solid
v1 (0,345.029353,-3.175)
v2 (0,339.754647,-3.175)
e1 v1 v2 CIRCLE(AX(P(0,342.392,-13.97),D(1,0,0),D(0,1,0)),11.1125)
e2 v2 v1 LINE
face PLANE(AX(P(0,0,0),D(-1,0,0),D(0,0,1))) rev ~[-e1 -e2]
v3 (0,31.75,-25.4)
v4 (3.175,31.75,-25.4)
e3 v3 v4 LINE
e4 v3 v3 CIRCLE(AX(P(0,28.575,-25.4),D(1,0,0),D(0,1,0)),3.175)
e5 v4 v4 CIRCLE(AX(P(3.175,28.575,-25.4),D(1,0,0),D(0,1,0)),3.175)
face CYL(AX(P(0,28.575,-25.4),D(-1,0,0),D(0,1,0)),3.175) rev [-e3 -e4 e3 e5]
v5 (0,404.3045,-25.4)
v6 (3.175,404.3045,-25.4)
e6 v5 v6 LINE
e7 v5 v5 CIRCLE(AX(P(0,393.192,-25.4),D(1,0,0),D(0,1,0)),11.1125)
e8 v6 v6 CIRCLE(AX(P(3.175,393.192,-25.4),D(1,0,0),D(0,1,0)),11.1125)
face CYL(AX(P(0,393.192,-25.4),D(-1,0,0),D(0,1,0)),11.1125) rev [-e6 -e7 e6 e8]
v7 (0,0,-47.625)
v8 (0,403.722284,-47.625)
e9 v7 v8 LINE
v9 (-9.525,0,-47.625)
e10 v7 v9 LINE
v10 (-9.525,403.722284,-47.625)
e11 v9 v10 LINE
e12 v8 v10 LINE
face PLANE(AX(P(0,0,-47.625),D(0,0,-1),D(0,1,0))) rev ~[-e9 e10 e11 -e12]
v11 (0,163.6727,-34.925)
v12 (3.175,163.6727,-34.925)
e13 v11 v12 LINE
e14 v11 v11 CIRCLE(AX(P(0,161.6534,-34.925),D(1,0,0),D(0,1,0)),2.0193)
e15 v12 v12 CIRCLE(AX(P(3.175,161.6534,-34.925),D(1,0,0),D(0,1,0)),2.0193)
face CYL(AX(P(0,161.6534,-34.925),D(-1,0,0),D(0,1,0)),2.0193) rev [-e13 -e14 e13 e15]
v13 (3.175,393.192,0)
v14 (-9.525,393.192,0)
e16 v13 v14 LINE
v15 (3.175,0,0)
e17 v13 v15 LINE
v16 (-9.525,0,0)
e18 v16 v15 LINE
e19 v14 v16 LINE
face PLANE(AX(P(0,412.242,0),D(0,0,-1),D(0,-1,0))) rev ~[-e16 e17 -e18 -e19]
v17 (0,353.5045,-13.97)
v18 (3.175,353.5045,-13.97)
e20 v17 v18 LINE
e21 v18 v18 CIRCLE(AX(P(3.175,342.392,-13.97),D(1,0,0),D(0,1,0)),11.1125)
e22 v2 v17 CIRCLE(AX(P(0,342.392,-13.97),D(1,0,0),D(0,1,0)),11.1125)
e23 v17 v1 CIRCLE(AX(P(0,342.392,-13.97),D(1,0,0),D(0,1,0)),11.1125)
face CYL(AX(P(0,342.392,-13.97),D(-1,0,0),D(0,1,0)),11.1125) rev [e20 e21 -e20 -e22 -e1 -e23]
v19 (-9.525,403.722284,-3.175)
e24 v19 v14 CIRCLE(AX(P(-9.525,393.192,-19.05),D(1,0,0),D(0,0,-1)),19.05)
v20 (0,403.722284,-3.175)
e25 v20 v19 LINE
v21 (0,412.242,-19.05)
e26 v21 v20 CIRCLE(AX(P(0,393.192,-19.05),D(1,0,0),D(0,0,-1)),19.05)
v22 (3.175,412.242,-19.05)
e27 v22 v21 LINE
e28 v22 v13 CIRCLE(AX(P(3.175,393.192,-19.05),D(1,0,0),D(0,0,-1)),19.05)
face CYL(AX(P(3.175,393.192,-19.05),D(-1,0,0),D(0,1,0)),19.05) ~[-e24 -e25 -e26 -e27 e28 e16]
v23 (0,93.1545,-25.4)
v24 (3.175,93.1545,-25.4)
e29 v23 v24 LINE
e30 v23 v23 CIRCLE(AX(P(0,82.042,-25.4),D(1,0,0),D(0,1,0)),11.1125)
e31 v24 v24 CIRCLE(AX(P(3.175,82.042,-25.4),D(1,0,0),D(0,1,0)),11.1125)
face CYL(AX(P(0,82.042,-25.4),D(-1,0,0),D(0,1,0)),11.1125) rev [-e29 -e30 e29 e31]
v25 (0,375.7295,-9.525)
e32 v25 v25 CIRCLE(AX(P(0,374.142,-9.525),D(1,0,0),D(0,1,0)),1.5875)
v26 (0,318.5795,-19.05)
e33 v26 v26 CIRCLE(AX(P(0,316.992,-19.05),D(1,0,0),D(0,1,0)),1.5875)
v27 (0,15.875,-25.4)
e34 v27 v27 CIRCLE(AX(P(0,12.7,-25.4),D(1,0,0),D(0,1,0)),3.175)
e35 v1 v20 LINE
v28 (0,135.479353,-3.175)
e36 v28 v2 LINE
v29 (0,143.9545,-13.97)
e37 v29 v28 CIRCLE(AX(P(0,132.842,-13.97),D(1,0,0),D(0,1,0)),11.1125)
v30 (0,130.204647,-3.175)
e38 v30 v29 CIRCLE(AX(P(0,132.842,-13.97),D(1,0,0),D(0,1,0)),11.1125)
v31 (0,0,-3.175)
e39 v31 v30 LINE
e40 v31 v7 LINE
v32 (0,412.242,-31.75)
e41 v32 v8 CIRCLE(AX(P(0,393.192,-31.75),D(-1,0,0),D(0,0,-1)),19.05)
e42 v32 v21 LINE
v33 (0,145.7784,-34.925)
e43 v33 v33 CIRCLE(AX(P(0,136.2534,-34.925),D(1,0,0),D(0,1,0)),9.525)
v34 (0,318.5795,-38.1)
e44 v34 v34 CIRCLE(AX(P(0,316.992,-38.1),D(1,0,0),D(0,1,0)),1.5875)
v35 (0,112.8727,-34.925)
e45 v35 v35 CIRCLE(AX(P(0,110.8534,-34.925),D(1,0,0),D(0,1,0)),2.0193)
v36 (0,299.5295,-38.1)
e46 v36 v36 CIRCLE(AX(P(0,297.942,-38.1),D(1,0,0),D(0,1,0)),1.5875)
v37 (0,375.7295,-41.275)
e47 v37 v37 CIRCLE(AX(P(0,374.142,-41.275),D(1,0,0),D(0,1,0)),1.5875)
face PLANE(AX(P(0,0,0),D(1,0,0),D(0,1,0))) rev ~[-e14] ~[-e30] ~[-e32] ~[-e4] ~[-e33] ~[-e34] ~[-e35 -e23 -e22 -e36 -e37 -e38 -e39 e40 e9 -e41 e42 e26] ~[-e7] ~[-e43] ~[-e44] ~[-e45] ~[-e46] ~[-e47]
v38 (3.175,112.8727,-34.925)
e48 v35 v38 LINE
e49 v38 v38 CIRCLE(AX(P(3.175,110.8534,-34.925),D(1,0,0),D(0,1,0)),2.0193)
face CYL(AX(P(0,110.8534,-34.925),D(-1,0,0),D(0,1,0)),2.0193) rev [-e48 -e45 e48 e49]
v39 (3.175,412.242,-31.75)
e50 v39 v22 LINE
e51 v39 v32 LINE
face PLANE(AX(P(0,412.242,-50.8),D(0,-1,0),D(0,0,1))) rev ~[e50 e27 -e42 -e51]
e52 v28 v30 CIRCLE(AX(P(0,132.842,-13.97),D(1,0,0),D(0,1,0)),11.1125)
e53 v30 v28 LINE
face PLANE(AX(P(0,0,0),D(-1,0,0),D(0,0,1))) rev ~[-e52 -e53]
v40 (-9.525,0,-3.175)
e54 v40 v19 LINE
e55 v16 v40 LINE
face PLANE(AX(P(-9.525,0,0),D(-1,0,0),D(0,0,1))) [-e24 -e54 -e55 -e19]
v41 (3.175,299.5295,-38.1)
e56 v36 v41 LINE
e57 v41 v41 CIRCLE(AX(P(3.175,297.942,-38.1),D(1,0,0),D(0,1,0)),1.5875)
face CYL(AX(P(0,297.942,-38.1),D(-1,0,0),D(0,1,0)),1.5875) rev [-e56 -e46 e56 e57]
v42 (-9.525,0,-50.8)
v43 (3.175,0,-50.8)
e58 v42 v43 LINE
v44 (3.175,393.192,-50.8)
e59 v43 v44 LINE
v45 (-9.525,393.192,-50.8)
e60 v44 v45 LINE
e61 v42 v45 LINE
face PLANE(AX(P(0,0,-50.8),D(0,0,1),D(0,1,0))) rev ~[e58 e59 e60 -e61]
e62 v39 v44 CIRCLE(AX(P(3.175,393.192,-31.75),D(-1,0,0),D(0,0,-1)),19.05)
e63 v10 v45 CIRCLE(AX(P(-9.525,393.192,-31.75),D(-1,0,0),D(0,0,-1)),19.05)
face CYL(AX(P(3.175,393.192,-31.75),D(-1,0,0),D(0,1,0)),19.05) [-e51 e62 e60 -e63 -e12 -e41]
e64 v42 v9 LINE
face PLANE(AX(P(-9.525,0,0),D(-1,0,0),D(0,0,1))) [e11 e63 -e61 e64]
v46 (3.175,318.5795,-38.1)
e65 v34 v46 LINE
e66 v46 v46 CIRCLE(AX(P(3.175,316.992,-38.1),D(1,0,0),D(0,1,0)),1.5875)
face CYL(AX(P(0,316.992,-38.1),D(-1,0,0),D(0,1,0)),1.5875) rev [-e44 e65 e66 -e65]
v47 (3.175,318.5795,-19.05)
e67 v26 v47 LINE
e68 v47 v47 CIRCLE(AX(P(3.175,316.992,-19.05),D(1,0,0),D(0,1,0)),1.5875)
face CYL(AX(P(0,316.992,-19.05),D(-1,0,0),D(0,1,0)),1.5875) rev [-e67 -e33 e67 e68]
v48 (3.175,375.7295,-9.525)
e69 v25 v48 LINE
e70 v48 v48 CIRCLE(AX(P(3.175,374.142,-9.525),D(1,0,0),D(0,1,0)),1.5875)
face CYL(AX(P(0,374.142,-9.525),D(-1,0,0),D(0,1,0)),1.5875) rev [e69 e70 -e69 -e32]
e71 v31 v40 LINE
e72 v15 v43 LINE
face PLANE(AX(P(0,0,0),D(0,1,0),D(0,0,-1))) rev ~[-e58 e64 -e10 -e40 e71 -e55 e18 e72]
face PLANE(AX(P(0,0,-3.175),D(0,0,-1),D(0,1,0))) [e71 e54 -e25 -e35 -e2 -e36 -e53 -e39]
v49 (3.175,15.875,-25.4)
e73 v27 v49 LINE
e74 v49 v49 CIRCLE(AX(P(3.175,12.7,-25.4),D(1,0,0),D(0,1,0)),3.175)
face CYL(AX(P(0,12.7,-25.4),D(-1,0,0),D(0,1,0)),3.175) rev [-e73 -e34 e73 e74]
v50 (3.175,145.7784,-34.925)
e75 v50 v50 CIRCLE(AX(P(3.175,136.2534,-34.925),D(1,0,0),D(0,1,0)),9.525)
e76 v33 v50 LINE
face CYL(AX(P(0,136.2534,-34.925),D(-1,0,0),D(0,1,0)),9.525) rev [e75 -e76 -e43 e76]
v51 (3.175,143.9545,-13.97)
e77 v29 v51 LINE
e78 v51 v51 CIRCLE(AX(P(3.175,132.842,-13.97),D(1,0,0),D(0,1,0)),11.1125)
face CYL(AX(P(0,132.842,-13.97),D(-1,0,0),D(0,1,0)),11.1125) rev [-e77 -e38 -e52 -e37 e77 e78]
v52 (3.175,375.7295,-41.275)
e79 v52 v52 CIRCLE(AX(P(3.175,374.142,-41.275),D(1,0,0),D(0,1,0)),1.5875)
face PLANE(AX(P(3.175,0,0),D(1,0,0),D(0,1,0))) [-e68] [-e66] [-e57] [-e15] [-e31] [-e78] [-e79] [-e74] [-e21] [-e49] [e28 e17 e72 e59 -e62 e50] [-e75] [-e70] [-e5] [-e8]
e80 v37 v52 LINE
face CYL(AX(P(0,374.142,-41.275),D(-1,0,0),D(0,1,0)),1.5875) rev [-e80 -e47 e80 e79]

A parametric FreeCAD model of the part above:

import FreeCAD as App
import Part
import Sketcher
from FreeCAD import Vector
Q = App.Units.Quantity


def edges_at(feature, points):
    """Names of the edges that pass closest to the given points."""
    edges = feature.Shape.Edges
    near = lambda p: min(range(len(edges)), key=lambda i: edges[i].distToShape(Part.Vertex(*p))[0])
    return sorted({f"Edge{near(p) + 1}" for p in points})

doc = App.newDocument("Part")
body = doc.addObject("PartDesign::Body", "Body")

sketch1 = body.newObject("Sketcher::SketchObject", "Sketch")
sketch1.AttachmentSupport = (doc.getObject("YZ_Plane"), [""])
sketch1.MapMode = "FlatFace"
sketch1.addGeometry(Part.LineSegment(Vector(412.242, 0, 0), Vector(0, 0, 0)), False)
sketch1.addGeometry(Part.LineSegment(Vector(0, 0, 0), Vector(0, -50.8, 0)), False)
sketch1.addGeometry(Part.LineSegment(Vector(0, -50.8, 0), Vector(412.242, -50.8, 0)), False)
sketch1.addGeometry(Part.LineSegment(Vector(412.242, -50.8, 0), Vector(412.242, 0, 0)), False)
sketch1.addGeometry(Part.Circle(Vector(12.7, -25.4, 0), Vector(0, 0, 1), 3.175), False)
sketch1.addGeometry(Part.Circle(Vector(28.575, -25.4, 0), Vector(0, 0, 1), 3.175), False)
sketch1.addGeometry(Part.Circle(Vector(82.042, -25.4, 0), Vector(0, 0, 1), 11.1125), False)
sketch1.addGeometry(Part.Circle(Vector(110.8534, -34.925, 0), Vector(0, 0, 1), 2.0193), False)
sketch1.addGeometry(Part.Circle(Vector(136.2534, -34.925, 0), Vector(0, 0, 1), 9.525), False)
sketch1.addGeometry(Part.Circle(Vector(161.6534, -34.925, 0), Vector(0, 0, 1), 2.0193), False)
sketch1.addGeometry(Part.Circle(Vector(297.942, -38.1, 0), Vector(0, 0, 1), 1.5875), False)
sketch1.addGeometry(Part.Circle(Vector(316.992, -38.1, 0), Vector(0, 0, 1), 1.5875), False)
sketch1.addGeometry(Part.Circle(Vector(374.142, -41.275, 0), Vector(0, 0, 1), 1.5875), False)
sketch1.addGeometry(Part.Circle(Vector(393.192, -25.4, 0), Vector(0, 0, 1), 11.1125), False)
sketch1.addGeometry(Part.Circle(Vector(132.842, -13.97, 0), Vector(0, 0, 1), 11.1125), False)
sketch1.addGeometry(Part.Circle(Vector(316.992, -19.05, 0), Vector(0, 0, 1), 1.5875), False)
sketch1.addGeometry(Part.Circle(Vector(342.392, -13.97, 0), Vector(0, 0, 1), 11.1125), False)
sketch1.addGeometry(Part.Circle(Vector(374.142, -9.525, 0), Vector(0, 0, 1), 1.5875), False)
sketch1.addConstraint(Sketcher.Constraint("Coincident", 0, 2, 1, 1))
sketch1.addConstraint(Sketcher.Constraint("Coincident", 1, 2, 2, 1))
sketch1.addConstraint(Sketcher.Constraint("Coincident", 2, 2, 3, 1))
sketch1.addConstraint(Sketcher.Constraint("Coincident", 3, 2, 0, 1))
sketch1.addConstraint(Sketcher.Constraint("Horizontal", 0))
sketch1.addConstraint(Sketcher.Constraint("Vertical", 1))
sketch1.addConstraint(Sketcher.Constraint("Horizontal", 2))
sketch1.addConstraint(Sketcher.Constraint("Vertical", 3))
sketch1.addConstraint(Sketcher.Constraint("Coincident", 0, 2, -1, 1))
sketch1.addConstraint(Sketcher.Constraint("Equal", 4, 5))
sketch1.addConstraint(Sketcher.Constraint("Equal", 7, 9))
sketch1.addConstraint(Sketcher.Constraint("Equal", 10, 11))
sketch1.addConstraint(Sketcher.Constraint("Equal", 11, 12))
sketch1.addConstraint(Sketcher.Constraint("Equal", 6, 13))
sketch1.addConstraint(Sketcher.Constraint("Equal", 13, 14))
sketch1.addConstraint(Sketcher.Constraint("Equal", 12, 15))
sketch1.addConstraint(Sketcher.Constraint("Equal", 14, 16))
sketch1.addConstraint(Sketcher.Constraint("Equal", 15, 17))
sketch1.addConstraint(Sketcher.Constraint("Horizontal", 4, 3, 5, 3))
sketch1.addConstraint(Sketcher.Constraint("Horizontal", 5, 3, 6, 3))
sketch1.addConstraint(Sketcher.Constraint("Horizontal", 7, 3, 8, 3))
sketch1.addConstraint(Sketcher.Constraint("Horizontal", 8, 3, 9, 3))
sketch1.addConstraint(Sketcher.Constraint("Horizontal", 10, 3, 11, 3))
sketch1.addConstraint(Sketcher.Constraint("Horizontal", 6, 3, 13, 3))
sketch1.addConstraint(Sketcher.Constraint("Horizontal", 14, 3, 16, 3))
sketch1.addConstraint(Sketcher.Constraint("Vertical", 11, 3, 15, 3))
sketch1.addConstraint(Sketcher.Constraint("Vertical", 12, 3, 17, 3))
sketch1.addConstraint(Sketcher.Constraint("Diameter", 4, Q("0.25 in")))
sketch1.addConstraint(Sketcher.Constraint("Diameter", 8, Q("0.75 in")))
sketch1.addConstraint(Sketcher.Constraint("DistanceY", 1, 2, 1, 1, Q("2 in")))
sketch1.addConstraint(Sketcher.Constraint("Diameter", 6, Q("0.875 in")))
sketch1.addConstraint(Sketcher.Constraint("Diameter", 7, Q("0.159 in")))
sketch1.addConstraint(Sketcher.Constraint("Diameter", 10, Q("0.125 in")))
sketch1.addConstraint(Sketcher.Constraint("DistanceX", 7, 3, 9, 3, Q("2 in")))
sketch1.addConstraint(Sketcher.Constraint("DistanceX", 6, 3, 14, 3, Q("2 in")))
sketch1.addConstraint(Sketcher.Constraint("DistanceX", 16, 3, 13, 3, Q("2 in")))
sketch1.addConstraint(Sketcher.Constraint("DistanceX", -1, 1, 4, 3, Q("0.5 in")))
sketch1.addConstraint(Sketcher.Constraint("DistanceY", 10, 3, 6, 3, Q("0.5 in")))
sketch1.addConstraint(Sketcher.Constraint("DistanceY", 2, 2, 11, 3, Q("0.5 in")))
sketch1.addConstraint(Sketcher.Constraint("DistanceX", -1, 1, 6, 3, Q("3.23 in")))
sketch1.addConstraint(Sketcher.Constraint("DistanceY", 15, 3, -1, 1, Q("0.75 in")))
sketch1.addConstraint(Sketcher.Constraint("DistanceX", 10, 3, 11, 3, Q("0.75 in")))
sketch1.addConstraint(Sketcher.Constraint("DistanceX", 6, 3, 11, 3, Q("9.25 in")))
sketch1.addConstraint(Sketcher.Constraint("DistanceY", 12, 3, 9, 3, Q("0.25 in")))
sketch1.addConstraint(Sketcher.Constraint("DistanceX", 12, 3, 13, 3, Q("0.75 in")))
sketch1.addConstraint(Sketcher.Constraint("DistanceY", 6, 3, 14, 3, Q("0.45 in")))
sketch1.addConstraint(Sketcher.Constraint("DistanceY", 12, 3, 17, 3, Q("1.25 in")))
sketch1.addConstraint(Sketcher.Constraint("DistanceX", 13, 3, 2, 2, Q("0.75 in")))
sketch1.addConstraint(Sketcher.Constraint("DistanceX", 4, 3, 5, 3, Q("0.625 in")))
sketch1.addConstraint(Sketcher.Constraint("DistanceX", 7, 3, 8, 3, Q("1 in")))
sketch1.addConstraint(Sketcher.Constraint("DistanceY", 10, 3, 9, 3, Q("0.125 in")))
sketch1.addConstraint(Sketcher.Constraint("DistanceX", 10, 3, 12, 3, Q("3 in")))
sketch1.addConstraint(Sketcher.Constraint("DistanceX", -1, 1, 7, 3, Q("4.3643 in")))
pad1 = body.newObject("PartDesign::Pad", "Pad")
pad1.Profile = sketch1
pad1.Length = Q("0.125 in")

sketch2 = body.newObject("Sketcher::SketchObject", "Sketch001")
sketch2.AttachmentSupport = (doc.getObject("YZ_Plane"), [""])
sketch2.MapMode = "FlatFace"
sketch2.addGeometry(Part.LineSegment(Vector(0, 0, 0), Vector(412.242, 0, 0)), False)
sketch2.addGeometry(Part.LineSegment(Vector(412.242, 0, 0), Vector(412.242, -3.175, 0)), False)
sketch2.addGeometry(Part.LineSegment(Vector(412.242, -3.175, 0), Vector(0, -3.175, 0)), False)
sketch2.addGeometry(Part.LineSegment(Vector(0, -3.175, 0), Vector(0, 0, 0)), False)
sketch2.addGeometry(Part.LineSegment(Vector(412.242, -50.8, 0), Vector(0, -50.8, 0)), False)
sketch2.addGeometry(Part.LineSegment(Vector(0, -50.8, 0), Vector(0, -47.625, 0)), False)
sketch2.addGeometry(Part.LineSegment(Vector(0, -47.625, 0), Vector(412.242, -47.625, 0)), False)
sketch2.addGeometry(Part.LineSegment(Vector(412.242, -47.625, 0), Vector(412.242, -50.8, 0)), False)
sketch2.addConstraint(Sketcher.Constraint("Coincident", 0, 2, 1, 1))
sketch2.addConstraint(Sketcher.Constraint("Coincident", 1, 2, 2, 1))
sketch2.addConstraint(Sketcher.Constraint("Coincident", 2, 2, 3, 1))
sketch2.addConstraint(Sketcher.Constraint("Coincident", 3, 2, 0, 1))
sketch2.addConstraint(Sketcher.Constraint("Coincident", 4, 2, 5, 1))
sketch2.addConstraint(Sketcher.Constraint("Coincident", 5, 2, 6, 1))
sketch2.addConstraint(Sketcher.Constraint("Coincident", 6, 2, 7, 1))
sketch2.addConstraint(Sketcher.Constraint("Coincident", 7, 2, 4, 1))
sketch2.addConstraint(Sketcher.Constraint("Horizontal", 0))
sketch2.addConstraint(Sketcher.Constraint("Vertical", 1))
sketch2.addConstraint(Sketcher.Constraint("Horizontal", 2))
sketch2.addConstraint(Sketcher.Constraint("Vertical", 3))
sketch2.addConstraint(Sketcher.Constraint("Horizontal", 4))
sketch2.addConstraint(Sketcher.Constraint("Vertical", 5))
sketch2.addConstraint(Sketcher.Constraint("Horizontal", 6))
sketch2.addConstraint(Sketcher.Constraint("Vertical", 7))
sketch2.addConstraint(Sketcher.Constraint("Coincident", 3, 2, -1, 1))
sketch2.addConstraint(Sketcher.Constraint("PointOnObject", 4, 2, -2))
sketch2.addConstraint(Sketcher.Constraint("Vertical", 1, 2, 6, 2))
sketch2.addConstraint(Sketcher.Constraint("Equal", 3, 5))
sketch2.addConstraint(Sketcher.Constraint("DistanceY", 1, 2, 1, 1, Q("0.125 in")))
sketch2.addConstraint(Sketcher.Constraint("DistanceY", 4, 2, -1, 1, Q("2 in")))
sketch2.addConstraint(Sketcher.Constraint("DistanceX", 0, 1, 0, 2, Q("16.23 in")))
pad2 = body.newObject("PartDesign::Pad", "Pad001")
pad2.Profile = sketch2
pad2.Length = Q("0.375 in")
pad2.Reversed = True
doc.recompute()

fillet = body.newObject("PartDesign::Fillet", "Fillet")
fillet.Base = (pad2, edges_at(pad2, [(-3.175, 412.242, 0), (-3.175, 412.242, -50.8)]))
fillet.Radius = Q("0.75 in")

doc.recompute()
